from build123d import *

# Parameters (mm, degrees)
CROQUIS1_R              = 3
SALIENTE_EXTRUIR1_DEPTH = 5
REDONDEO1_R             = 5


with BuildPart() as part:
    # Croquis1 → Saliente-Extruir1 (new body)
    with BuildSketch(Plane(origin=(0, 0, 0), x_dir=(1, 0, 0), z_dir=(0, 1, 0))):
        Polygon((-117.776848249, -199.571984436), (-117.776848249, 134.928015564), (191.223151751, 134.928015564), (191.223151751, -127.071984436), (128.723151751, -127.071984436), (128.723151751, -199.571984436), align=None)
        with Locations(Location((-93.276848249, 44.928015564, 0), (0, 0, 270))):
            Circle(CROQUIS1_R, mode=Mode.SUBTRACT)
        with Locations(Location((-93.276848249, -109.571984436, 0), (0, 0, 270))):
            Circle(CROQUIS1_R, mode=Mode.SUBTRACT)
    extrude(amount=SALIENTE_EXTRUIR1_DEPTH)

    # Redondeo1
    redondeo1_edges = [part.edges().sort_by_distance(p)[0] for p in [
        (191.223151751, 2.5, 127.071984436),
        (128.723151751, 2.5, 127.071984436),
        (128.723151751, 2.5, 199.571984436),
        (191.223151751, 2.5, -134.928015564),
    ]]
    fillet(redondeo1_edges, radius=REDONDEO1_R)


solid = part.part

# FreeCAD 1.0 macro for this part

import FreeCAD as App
import Part
import Sketcher

V = App.Vector


def edges_at(feature, points):
    """Names of the edges that pass closest to the given points."""
    edges = feature.Shape.Edges
    near = lambda p: min(range(len(edges)), key=lambda i: edges[i].distToShape(Part.Vertex(*p))[0])
    return sorted({f"Edge{near(p) + 1}" for p in points})

doc = App.newDocument("Part")
body = doc.addObject("PartDesign::Body", "Body")

# Sketch on XZ plane
sketch1 = doc.addObject("Sketcher::SketchObject", "Sketch")
body.addObject(sketch1)
sketch1.AttachmentSupport = (doc.XZ_Plane, [""])
sketch1.MapMode = "FlatFace"
sketch1.addGeometry(Part.LineSegment(V(-117.8, -134.9, 0), V(-117.8, 199.6, 0)), False)
sketch1.addGeometry(Part.LineSegment(V(-117.8, 199.6, 0), V(128.7, 199.6, 0)), False)
sketch1.addGeometry(Part.LineSegment(V(128.7, 199.6, 0), V(128.7, 127.1, 0)), False)
sketch1.addGeometry(Part.LineSegment(V(128.7, 127.1, 0), V(191.2, 127.1, 0)), False)
sketch1.addGeometry(Part.LineSegment(V(191.2, 127.1, 0), V(191.2, -134.9, 0)), False)
sketch1.addGeometry(Part.LineSegment(V(191.2, -134.9, 0), V(-117.8, -134.9, 0)), False)
sketch1.addGeometry(Part.Circle(V(-93.3, 109.6, 0), V(0, 0, 1), 3), False)
sketch1.addGeometry(Part.Circle(V(-93.3, -44.9, 0), V(0, 0, 1), 3), False)
sketch1.addConstraint(Sketcher.Constraint("Coincident", 0, 2, 1, 1))
sketch1.addConstraint(Sketcher.Constraint("Coincident", 1, 2, 2, 1))
sketch1.addConstraint(Sketcher.Constraint("Coincident", 2, 2, 3, 1))
sketch1.addConstraint(Sketcher.Constraint("Coincident", 3, 2, 4, 1))
sketch1.addConstraint(Sketcher.Constraint("Coincident", 4, 2, 5, 1))
sketch1.addConstraint(Sketcher.Constraint("Coincident", 5, 2, 0, 1))
sketch1.addConstraint(Sketcher.Constraint("Vertical", 0))
sketch1.addConstraint(Sketcher.Constraint("Horizontal", 1))
sketch1.addConstraint(Sketcher.Constraint("Vertical", 2))
sketch1.addConstraint(Sketcher.Constraint("Horizontal", 3))
sketch1.addConstraint(Sketcher.Constraint("Vertical", 4))
sketch1.addConstraint(Sketcher.Constraint("Horizontal", 5))
sketch1.addConstraint(Sketcher.Constraint("Equal", 6, 7))
sketch1.addConstraint(Sketcher.Constraint("Vertical", 6, 3, 7, 3))
sketch1.addConstraint(Sketcher.Constraint("Diameter", 6, 6.0))
sketch1.addConstraint(Sketcher.Constraint("DistanceX", 5, 2, 5, 1, 309.0))
sketch1.addConstraint(Sketcher.Constraint("DistanceY", 4, 2, 4, 1, 262.0))
sketch1.addConstraint(Sketcher.Constraint("DistanceX", 1, 1, 1, 2, 246.5))
sketch1.addConstraint(Sketcher.Constraint("DistanceY", 0, 1, 0, 2, 334.5))
sketch1.addConstraint(Sketcher.Constraint("DistanceY", 6, 3, 0, 2, 90.0))
sketch1.addConstraint(Sketcher.Constraint("DistanceX", 6, 3, 1, 2, 222.0))
sketch1.addConstraint(Sketcher.Constraint("DistanceY", 7, 3, 2, 2, 172.0))
sketch1.addConstraint(Sketcher.Constraint("DistanceX", 6, 3, -1, 1, 93.276848))
sketch1.addConstraint(Sketcher.Constraint("DistanceY", -1, 1, 6, 3, 109.571984))
pad1 = doc.addObject("PartDesign::Pad", "Pad")
body.addObject(pad1)
pad1.Profile = sketch1
pad1.Length = 5
pad1.Reversed = True
doc.recompute()

fillet = doc.addObject("PartDesign::Fillet", "Fillet")
body.addObject(fillet)
fillet.Base = (pad1, edges_at(pad1, [
    (191.223, 2.5, 127.072),
    (128.723, 2.5, 127.072),
    (128.723, 2.5, 199.572),
    (191.223, 2.5, -134.928),
]))
fillet.Radius = 5

doc.recompute()
